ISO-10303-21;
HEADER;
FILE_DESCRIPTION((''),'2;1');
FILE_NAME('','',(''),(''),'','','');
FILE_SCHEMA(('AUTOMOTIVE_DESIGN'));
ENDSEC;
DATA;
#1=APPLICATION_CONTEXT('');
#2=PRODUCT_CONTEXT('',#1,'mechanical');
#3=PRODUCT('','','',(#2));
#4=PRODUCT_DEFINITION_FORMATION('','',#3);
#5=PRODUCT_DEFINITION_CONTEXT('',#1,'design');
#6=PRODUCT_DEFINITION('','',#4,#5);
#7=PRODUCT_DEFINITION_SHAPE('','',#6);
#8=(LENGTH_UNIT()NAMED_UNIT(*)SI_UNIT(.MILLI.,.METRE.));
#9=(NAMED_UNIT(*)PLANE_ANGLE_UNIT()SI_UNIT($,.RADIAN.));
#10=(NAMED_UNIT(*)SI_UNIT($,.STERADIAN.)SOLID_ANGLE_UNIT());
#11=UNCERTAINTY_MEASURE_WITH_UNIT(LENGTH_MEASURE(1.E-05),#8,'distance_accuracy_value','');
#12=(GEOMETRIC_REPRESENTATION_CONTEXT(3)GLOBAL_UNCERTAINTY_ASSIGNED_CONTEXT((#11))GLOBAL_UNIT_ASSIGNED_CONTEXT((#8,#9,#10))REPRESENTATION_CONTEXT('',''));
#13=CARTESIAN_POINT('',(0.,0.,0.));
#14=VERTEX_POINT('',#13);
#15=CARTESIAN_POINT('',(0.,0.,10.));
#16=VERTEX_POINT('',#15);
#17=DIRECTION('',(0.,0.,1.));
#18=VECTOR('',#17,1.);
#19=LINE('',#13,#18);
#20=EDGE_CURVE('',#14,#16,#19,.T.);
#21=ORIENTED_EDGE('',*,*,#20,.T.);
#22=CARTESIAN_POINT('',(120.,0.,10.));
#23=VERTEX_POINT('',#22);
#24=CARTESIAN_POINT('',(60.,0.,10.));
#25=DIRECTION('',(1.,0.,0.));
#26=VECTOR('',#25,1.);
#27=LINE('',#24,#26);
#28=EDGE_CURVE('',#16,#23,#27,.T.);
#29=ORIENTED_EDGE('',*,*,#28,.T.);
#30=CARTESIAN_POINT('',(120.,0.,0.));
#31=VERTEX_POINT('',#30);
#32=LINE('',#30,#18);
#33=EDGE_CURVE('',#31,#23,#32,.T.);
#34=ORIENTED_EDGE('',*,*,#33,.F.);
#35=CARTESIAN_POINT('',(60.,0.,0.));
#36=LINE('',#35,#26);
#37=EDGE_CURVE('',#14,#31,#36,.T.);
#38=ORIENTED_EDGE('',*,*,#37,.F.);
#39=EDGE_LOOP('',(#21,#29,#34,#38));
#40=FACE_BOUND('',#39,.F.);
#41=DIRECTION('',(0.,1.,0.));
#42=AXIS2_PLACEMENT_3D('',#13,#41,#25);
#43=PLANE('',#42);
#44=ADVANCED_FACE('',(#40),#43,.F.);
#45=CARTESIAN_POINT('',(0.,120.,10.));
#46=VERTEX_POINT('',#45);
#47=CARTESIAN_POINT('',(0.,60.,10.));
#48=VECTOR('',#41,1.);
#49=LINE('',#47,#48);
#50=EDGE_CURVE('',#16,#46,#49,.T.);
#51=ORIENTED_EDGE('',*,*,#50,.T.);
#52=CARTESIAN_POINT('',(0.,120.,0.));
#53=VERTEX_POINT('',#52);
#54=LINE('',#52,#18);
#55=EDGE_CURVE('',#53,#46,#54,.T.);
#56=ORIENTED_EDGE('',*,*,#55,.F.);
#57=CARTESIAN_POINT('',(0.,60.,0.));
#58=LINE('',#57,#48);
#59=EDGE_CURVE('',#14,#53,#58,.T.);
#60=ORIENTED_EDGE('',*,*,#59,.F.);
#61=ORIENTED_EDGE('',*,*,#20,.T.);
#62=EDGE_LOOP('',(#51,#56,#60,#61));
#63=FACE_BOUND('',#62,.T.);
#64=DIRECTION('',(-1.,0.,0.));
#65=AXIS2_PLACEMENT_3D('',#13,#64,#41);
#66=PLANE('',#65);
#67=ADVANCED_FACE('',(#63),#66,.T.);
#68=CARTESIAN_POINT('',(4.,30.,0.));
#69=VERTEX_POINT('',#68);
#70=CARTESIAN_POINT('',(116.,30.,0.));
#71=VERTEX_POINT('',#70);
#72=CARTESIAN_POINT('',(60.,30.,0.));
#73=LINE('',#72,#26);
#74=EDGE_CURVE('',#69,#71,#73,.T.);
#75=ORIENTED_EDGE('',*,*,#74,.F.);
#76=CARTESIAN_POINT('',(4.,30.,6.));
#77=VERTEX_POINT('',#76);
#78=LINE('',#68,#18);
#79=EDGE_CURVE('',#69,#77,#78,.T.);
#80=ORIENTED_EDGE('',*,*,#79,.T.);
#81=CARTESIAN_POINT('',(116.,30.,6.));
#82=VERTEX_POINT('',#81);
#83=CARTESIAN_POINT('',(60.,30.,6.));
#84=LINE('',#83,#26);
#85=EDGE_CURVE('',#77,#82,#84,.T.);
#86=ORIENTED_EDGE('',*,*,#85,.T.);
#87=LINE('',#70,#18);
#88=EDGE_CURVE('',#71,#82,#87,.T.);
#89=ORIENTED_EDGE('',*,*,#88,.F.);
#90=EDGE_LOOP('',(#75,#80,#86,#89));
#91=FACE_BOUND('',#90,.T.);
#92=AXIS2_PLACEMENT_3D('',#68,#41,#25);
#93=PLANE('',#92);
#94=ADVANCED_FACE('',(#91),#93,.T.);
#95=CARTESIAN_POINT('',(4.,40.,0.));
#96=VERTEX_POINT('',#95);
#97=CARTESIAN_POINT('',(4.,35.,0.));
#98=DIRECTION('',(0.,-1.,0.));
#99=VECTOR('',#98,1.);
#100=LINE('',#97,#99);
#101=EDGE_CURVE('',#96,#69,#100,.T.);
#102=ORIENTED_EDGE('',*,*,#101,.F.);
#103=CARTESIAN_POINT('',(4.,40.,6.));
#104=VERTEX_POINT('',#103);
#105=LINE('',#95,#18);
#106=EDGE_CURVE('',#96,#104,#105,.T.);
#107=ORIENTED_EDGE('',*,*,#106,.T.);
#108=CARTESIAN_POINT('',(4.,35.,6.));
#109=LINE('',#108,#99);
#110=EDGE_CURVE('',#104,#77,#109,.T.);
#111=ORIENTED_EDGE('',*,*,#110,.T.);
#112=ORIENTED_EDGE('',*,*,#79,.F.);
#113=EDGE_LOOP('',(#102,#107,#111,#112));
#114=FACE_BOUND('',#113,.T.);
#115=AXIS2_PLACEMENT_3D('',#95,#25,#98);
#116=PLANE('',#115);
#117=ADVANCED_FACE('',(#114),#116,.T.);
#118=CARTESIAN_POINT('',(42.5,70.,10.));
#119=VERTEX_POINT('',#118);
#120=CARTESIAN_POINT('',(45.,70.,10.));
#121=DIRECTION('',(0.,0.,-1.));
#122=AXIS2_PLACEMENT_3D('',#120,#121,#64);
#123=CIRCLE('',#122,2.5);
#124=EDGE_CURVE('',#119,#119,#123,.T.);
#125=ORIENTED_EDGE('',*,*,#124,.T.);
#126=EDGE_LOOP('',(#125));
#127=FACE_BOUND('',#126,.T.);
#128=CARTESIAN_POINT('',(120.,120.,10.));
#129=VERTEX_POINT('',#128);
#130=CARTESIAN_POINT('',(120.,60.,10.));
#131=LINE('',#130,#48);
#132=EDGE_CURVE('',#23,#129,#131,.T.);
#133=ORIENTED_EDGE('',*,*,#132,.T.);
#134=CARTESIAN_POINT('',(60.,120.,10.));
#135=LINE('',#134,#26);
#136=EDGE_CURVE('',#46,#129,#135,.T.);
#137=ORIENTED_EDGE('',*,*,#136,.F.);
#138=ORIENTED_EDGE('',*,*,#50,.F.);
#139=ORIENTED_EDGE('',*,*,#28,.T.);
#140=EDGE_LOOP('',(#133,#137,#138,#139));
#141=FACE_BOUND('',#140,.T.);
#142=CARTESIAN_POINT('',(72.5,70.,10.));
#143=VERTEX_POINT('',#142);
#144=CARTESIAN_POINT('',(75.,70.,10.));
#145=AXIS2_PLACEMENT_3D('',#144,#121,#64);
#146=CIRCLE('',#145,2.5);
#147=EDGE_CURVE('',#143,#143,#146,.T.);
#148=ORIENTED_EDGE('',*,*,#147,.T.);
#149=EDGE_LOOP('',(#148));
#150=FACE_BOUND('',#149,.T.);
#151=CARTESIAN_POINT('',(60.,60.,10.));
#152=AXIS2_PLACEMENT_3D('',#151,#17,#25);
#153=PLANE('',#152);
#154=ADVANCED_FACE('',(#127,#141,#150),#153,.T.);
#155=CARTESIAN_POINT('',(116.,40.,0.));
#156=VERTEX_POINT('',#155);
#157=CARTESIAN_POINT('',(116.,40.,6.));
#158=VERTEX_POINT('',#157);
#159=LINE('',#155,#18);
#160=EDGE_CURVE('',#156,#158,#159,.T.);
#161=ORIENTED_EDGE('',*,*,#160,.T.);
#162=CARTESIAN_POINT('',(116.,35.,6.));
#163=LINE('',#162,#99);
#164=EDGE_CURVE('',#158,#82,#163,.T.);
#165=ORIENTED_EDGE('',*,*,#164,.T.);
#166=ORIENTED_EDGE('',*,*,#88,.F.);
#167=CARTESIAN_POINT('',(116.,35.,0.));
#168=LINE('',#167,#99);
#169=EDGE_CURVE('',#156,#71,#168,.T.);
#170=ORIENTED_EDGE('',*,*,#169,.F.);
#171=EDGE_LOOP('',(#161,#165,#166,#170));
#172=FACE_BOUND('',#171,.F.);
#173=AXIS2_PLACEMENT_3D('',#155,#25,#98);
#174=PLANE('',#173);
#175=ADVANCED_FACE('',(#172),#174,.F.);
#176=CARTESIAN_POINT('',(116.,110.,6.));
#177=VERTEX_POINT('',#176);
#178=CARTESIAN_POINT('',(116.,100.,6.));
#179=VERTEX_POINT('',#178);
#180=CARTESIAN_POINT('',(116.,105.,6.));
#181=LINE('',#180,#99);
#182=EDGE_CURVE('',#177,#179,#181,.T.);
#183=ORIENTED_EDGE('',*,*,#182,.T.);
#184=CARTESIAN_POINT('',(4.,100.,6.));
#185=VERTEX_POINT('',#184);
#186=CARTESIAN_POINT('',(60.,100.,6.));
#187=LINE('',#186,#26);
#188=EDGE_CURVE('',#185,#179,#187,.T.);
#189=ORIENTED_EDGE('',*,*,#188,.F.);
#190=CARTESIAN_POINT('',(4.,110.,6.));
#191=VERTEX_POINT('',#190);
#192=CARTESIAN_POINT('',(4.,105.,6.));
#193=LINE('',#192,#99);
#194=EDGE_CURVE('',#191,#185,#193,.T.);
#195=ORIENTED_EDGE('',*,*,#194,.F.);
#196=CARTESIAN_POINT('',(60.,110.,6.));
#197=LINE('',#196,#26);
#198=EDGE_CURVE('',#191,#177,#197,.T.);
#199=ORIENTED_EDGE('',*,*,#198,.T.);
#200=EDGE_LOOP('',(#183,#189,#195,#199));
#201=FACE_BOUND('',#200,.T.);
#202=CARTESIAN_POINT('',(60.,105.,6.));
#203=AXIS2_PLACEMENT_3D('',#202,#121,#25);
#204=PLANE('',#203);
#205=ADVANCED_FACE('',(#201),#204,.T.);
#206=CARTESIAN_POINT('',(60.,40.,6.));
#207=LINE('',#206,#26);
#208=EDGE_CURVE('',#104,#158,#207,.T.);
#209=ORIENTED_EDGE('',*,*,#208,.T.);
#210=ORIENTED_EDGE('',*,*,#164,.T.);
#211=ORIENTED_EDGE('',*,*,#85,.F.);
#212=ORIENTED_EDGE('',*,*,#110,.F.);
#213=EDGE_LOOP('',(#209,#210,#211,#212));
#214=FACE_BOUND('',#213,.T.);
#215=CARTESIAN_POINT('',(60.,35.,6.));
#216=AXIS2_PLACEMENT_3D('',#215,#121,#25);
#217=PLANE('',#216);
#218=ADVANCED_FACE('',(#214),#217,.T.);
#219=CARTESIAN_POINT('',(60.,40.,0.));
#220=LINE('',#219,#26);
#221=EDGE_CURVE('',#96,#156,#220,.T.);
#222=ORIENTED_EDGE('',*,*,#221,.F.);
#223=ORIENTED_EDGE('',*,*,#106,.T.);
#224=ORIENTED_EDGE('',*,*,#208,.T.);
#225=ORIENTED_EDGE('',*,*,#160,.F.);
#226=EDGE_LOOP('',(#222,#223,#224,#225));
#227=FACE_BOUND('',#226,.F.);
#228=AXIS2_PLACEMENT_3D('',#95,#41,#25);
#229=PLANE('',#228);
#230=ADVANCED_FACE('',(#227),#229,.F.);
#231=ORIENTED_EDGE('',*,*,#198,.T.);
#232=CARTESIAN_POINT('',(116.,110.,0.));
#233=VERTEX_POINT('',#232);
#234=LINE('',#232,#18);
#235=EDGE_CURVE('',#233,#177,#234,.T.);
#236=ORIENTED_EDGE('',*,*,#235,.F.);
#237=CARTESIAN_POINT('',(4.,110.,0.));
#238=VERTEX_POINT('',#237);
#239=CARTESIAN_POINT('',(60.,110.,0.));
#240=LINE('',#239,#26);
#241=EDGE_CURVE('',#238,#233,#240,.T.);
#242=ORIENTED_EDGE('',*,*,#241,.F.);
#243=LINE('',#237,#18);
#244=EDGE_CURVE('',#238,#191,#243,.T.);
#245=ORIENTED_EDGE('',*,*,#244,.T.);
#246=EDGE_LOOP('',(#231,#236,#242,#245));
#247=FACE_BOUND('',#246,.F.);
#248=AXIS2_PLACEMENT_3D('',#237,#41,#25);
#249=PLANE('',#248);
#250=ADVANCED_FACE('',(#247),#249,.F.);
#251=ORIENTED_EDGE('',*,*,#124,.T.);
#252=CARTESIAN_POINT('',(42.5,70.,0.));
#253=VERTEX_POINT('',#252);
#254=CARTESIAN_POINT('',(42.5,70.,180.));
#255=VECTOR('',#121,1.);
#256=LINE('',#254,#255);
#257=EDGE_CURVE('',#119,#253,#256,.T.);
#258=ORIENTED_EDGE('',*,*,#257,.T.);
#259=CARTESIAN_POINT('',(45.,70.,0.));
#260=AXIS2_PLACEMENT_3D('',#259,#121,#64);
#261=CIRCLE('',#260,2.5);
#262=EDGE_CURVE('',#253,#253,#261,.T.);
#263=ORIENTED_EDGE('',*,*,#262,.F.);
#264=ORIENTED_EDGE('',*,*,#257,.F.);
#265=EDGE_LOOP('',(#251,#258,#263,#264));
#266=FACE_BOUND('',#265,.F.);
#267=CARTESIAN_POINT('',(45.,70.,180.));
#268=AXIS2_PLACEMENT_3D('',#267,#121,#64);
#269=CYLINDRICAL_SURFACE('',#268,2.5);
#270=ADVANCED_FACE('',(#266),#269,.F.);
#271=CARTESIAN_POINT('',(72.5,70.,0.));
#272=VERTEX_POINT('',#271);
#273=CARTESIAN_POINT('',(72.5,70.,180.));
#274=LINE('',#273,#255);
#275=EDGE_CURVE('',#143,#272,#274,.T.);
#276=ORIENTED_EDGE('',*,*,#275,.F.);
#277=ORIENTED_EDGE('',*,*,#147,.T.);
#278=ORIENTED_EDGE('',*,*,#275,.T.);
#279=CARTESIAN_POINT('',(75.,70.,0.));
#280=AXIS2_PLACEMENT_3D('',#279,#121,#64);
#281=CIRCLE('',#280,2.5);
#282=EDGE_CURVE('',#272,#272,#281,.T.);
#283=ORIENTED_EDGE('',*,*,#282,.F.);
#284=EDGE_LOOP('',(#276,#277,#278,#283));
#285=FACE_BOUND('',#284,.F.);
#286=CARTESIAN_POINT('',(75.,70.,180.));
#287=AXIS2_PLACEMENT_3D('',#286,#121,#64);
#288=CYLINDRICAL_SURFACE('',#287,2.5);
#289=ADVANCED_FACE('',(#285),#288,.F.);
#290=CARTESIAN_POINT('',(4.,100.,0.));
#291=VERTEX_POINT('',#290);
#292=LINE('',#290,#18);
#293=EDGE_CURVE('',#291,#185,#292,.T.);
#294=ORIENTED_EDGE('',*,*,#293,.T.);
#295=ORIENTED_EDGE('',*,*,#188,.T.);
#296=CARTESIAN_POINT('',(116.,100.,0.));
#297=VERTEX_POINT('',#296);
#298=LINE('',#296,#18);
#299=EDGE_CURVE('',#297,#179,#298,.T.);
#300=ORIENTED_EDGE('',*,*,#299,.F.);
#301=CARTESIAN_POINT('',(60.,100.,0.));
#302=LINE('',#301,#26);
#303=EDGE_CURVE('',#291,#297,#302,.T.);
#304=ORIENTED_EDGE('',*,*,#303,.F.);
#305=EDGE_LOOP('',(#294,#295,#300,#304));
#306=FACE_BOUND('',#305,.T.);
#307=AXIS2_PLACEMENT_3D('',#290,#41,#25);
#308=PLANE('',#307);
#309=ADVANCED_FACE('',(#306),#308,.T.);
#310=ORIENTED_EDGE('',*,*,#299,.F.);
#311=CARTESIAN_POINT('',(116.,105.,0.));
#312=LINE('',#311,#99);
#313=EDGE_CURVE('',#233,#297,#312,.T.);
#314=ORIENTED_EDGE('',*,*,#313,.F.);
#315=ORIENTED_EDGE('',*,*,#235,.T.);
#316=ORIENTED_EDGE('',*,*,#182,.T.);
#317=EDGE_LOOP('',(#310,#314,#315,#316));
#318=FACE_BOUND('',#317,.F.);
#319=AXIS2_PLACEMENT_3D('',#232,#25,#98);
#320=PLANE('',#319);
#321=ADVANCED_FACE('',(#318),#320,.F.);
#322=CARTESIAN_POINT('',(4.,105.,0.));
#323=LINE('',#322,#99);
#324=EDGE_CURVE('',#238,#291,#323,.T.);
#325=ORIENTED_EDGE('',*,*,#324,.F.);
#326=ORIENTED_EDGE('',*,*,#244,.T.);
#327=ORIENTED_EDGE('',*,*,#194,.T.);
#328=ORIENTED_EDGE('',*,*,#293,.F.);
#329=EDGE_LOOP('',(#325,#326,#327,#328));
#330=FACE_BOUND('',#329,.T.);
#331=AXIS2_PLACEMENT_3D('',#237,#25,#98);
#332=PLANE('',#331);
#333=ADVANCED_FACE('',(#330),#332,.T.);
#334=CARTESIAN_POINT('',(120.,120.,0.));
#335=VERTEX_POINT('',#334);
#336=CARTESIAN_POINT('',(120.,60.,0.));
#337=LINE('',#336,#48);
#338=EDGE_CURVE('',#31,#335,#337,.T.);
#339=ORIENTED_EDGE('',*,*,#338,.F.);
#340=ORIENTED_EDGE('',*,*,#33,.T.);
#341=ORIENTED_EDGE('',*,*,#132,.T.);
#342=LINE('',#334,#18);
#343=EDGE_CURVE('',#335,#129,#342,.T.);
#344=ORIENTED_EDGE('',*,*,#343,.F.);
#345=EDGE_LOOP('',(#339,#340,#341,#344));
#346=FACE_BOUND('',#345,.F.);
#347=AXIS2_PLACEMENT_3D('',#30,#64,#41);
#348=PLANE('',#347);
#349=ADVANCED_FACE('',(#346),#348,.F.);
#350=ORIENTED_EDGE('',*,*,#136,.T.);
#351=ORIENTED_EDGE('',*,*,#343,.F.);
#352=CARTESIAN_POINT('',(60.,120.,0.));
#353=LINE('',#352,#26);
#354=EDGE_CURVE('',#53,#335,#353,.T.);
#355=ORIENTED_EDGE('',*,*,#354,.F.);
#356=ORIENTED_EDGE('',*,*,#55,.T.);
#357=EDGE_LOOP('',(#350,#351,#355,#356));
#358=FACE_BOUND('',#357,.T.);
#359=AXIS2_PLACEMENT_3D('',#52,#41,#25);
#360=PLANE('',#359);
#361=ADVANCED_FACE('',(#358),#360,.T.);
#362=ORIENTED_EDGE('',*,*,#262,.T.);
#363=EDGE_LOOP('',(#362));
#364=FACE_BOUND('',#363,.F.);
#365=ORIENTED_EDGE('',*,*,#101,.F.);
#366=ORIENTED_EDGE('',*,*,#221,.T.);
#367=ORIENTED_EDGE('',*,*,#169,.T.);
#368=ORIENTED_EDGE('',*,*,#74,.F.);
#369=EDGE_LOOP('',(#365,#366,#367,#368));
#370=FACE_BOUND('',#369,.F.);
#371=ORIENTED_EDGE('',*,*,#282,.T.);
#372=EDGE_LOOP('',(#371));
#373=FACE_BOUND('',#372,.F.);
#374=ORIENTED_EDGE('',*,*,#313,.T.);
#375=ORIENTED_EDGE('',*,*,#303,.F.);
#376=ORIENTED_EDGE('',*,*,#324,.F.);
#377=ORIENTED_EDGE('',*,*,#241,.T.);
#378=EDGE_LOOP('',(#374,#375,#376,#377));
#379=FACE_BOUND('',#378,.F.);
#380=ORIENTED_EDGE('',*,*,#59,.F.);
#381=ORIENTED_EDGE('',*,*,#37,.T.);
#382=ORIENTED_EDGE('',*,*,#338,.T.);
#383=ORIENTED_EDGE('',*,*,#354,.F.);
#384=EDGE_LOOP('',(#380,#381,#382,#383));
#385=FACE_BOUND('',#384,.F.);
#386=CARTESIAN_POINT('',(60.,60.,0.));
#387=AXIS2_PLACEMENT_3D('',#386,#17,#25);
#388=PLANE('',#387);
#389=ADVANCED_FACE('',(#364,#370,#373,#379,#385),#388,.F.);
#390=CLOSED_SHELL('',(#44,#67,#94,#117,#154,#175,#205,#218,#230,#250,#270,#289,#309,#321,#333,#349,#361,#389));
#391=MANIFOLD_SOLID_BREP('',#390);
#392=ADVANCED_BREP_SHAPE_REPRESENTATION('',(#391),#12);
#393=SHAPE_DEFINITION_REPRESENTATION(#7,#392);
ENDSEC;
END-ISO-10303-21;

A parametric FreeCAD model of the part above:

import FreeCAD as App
import Part
import Sketcher
from FreeCAD import Vector

doc = App.newDocument("Part")
params = doc.addObject("Spreadsheet::Sheet", "Params")
for row, (alias, value) in enumerate([
    ("sketch1_width", "120 mm"),
    ("pad1_length", "10 mm"),
    ("sketch2_width", "112 mm"),
    ("sketch2_height", "10 mm"),
    ("pocket1_length", "6 mm"),
    ("sketch3_diameter", "5 mm"),
    ("hole_diameter", "5 mm"),
], start=1):
    params.set(f"A{row}", alias)
    params.set(f"B{row}", "=" + value)
    params.setAlias(f"B{row}", alias)

body = doc.addObject("PartDesign::Body", "Body")

# Sketch on XY plane
sketch1 = body.newObject("Sketcher::SketchObject", "Sketch")
sketch1.AttachmentSupport = (doc.getObject("XY_Plane"), [""])
sketch1.MapMode = "FlatFace"
sketch1.addGeometry([
    Part.LineSegment(Vector(0, 120, 0), Vector(0, 0, 0)),
    Part.LineSegment(Vector(0, 0, 0), Vector(120, 0, 0)),
    Part.LineSegment(Vector(120, 0, 0), Vector(120, 120, 0)),
    Part.LineSegment(Vector(120, 120, 0), Vector(0, 120, 0)),
], False)
sketch1.addConstraint([
    Sketcher.Constraint("Coincident", 0, 2, 1, 1),
    Sketcher.Constraint("Coincident", 1, 2, 2, 1),
    Sketcher.Constraint("Coincident", 2, 2, 3, 1),
    Sketcher.Constraint("Coincident", 3, 2, 0, 1),
    Sketcher.Constraint("Vertical", 0),
    Sketcher.Constraint("Horizontal", 1),
    Sketcher.Constraint("Vertical", 2),
    Sketcher.Constraint("Horizontal", 3),
    Sketcher.Constraint("Coincident", 0, 2, -1, 1),
    Sketcher.Constraint("Equal", 3, 0),
    Sketcher.Constraint("DistanceX", 1, 1, 1, 2, 120.0),
])
sketch1.setExpression("Constraints[10]", "Params.sketch1_width")
pad1 = body.newObject("PartDesign::Pad", "Pad")
pad1.Profile = sketch1
pad1.setExpression("Length", "Params.pad1_length")

# Sketch on XY plane
sketch2 = body.newObject("Sketcher::SketchObject", "Sketch001")
sketch2.AttachmentSupport = (doc.getObject("XY_Plane"), [""])
sketch2.MapMode = "FlatFace"
sketch2.addGeometry([
    Part.LineSegment(Vector(4, 100, 0), Vector(4, 110, 0)),  # 0
    Part.LineSegment(Vector(4, 110, 0), Vector(116, 110, 0)),  # 1
    Part.LineSegment(Vector(116, 110, 0), Vector(116, 100, 0)),  # 2
    Part.LineSegment(Vector(116, 100, 0), Vector(4, 100, 0)),  # 3
    Part.LineSegment(Vector(4, 30, 0), Vector(4, 40, 0)),  # 4
    Part.LineSegment(Vector(4, 40, 0), Vector(116, 40, 0)),  # 5
    Part.LineSegment(Vector(116, 40, 0), Vector(116, 30, 0)),  # 6
    Part.LineSegment(Vector(116, 30, 0), Vector(4, 30, 0)),  # 7
], False)
sketch2.addConstraint([
    Sketcher.Constraint("Coincident", 0, 2, 1, 1),
    Sketcher.Constraint("Coincident", 1, 2, 2, 1),
    Sketcher.Constraint("Coincident", 2, 2, 3, 1),
    Sketcher.Constraint("Coincident", 3, 2, 0, 1),
    Sketcher.Constraint("Coincident", 4, 2, 5, 1),
    Sketcher.Constraint("Coincident", 5, 2, 6, 1),
    Sketcher.Constraint("Coincident", 6, 2, 7, 1),
    Sketcher.Constraint("Coincident", 7, 2, 4, 1),
    Sketcher.Constraint("Vertical", 0),
    Sketcher.Constraint("Horizontal", 1),
    Sketcher.Constraint("Vertical", 2),
    Sketcher.Constraint("Horizontal", 3),
    Sketcher.Constraint("Vertical", 4),
    Sketcher.Constraint("Horizontal", 5),
    Sketcher.Constraint("Vertical", 6),
    Sketcher.Constraint("Horizontal", 7),
    Sketcher.Constraint("Vertical", 3, 2, 4, 2),
    Sketcher.Constraint("Vertical", 2, 2, 5, 2),
    Sketcher.Constraint("Equal", 2, 4),
    Sketcher.Constraint("DistanceX", 1, 1, 1, 2, 112.0),
    Sketcher.Constraint("DistanceY", 0, 1, 0, 2, 10.0),
    Sketcher.Constraint("DistanceX", -1, 1, 0, 2, 4.0),
    Sketcher.Constraint("DistanceY", -1, 1, 0, 2, 110.0),
    Sketcher.Constraint("DistanceY", -1, 1, 4, 2, 40.0),
])
sketch2.setExpression("Constraints[19]", "Params.sketch2_width")
sketch2.setExpression("Constraints[20]", "Params.sketch2_height")
pocket1 = body.newObject("PartDesign::Pocket", "Pocket")
pocket1.Profile = sketch2
pocket1.setExpression("Length", "Params.pocket1_length")
pocket1.Reversed = True

# Sketch on XY plane
sketch3 = body.newObject("Sketcher::SketchObject", "Sketch002")
sketch3.AttachmentSupport = (doc.getObject("XY_Plane"), [""])
sketch3.MapMode = "FlatFace"
sketch3.AttachmentOffset = App.Placement(Vector(0, 0, 10), App.Rotation())
sketch3.addGeometry([
    Part.Circle(Vector(45, 70, 0), Vector(0, 0, 1), 2.5),
    Part.Circle(Vector(75, 70, 0), Vector(0, 0, 1), 2.5),
], False)
sketch3.addConstraint([
    Sketcher.Constraint("Equal", 0, 1),
    Sketcher.Constraint("Horizontal", 0, 3, 1, 3),
    Sketcher.Constraint("Diameter", 0, 5.0),
    Sketcher.Constraint("DistanceX", -1, 1, 0, 3, 45.0),
    Sketcher.Constraint("DistanceY", -1, 1, 0, 3, 70.0),
    Sketcher.Constraint("DistanceX", -1, 1, 1, 3, 75.0),
])
sketch3.setExpression("Constraints[2]", "Params.sketch3_diameter")
doc.recompute()
hole = body.newObject("PartDesign::Hole", "Hole")
hole.Profile = sketch3
hole.ThreadType = "None"
hole.setExpression("Diameter", "Params.hole_diameter")
hole.DepthType = "ThroughAll"

doc.recompute()
